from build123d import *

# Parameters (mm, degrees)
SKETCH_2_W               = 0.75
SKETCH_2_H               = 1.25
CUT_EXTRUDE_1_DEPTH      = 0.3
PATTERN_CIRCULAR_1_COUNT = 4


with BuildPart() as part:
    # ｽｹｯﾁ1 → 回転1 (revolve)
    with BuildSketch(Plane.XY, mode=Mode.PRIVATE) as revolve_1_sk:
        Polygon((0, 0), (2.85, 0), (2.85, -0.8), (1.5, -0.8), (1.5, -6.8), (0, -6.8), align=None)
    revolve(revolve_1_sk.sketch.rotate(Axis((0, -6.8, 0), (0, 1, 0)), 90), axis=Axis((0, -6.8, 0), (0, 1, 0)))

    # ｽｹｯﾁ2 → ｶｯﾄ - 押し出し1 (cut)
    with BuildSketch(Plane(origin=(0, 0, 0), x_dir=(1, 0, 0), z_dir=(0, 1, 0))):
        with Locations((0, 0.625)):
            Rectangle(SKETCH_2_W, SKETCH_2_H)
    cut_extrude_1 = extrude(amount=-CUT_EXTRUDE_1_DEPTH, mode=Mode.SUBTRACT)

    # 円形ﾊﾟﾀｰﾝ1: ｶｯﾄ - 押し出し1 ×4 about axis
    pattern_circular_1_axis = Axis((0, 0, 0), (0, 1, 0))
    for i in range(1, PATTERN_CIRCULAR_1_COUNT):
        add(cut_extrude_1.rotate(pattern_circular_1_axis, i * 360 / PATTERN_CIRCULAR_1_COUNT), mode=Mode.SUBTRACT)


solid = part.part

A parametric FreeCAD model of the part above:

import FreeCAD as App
import Part
import Sketcher
from FreeCAD import Vector
Q = App.Units.Quantity


def add_polygon(sketch, points):
    """Adds a closed chain of lines whose ends are joined by coincident constraints."""
    first, n = sketch.GeometryCount, len(points)
    for a, b in zip(points, points[1:] + points[:1]):
        sketch.addGeometry(Part.LineSegment(App.Vector(*a, 0), App.Vector(*b, 0)), False)
    for i in range(n):
        sketch.addConstraint(Sketcher.Constraint("Coincident", first + i, 2, first + (i + 1) % n, 1))

doc = App.newDocument("Part")
body = doc.addObject("PartDesign::Body", "Body")

sketch1 = doc.addObject("Sketcher::SketchObject", "Sketch")
body.addObject(sketch1)
sketch1.AttachmentSupport = (doc.XY_Plane, [""])
sketch1.MapMode = "FlatFace"
add_polygon(sketch1, [(2.9, 0), (0, 0), (0, -6.8), (1.5, -6.8), (1.5, -0.8), (2.9, -0.8)])
sketch1.addConstraint([
    Sketcher.Constraint("Horizontal", 0),
    Sketcher.Constraint("Vertical", 1),
    Sketcher.Constraint("Horizontal", 2),
    Sketcher.Constraint("Vertical", 3),
    Sketcher.Constraint("Horizontal", 4),
    Sketcher.Constraint("Vertical", 5),
    Sketcher.Constraint("Coincident", 0, 2, -1, 1),
    Sketcher.Constraint("DistanceY", 3, 1, 3, 2, Q("6 mm")),
    Sketcher.Constraint("DistanceX", 2, 1, 2, 2, Q("1.5 mm")),
    Sketcher.Constraint("DistanceY", 1, 2, 1, 1, Q("6.8 mm")),
    Sketcher.Constraint("DistanceX", 0, 2, 0, 1, Q("2.85 mm")),
])
revolution = doc.addObject("PartDesign::Revolution", "Revolution")
body.addObject(revolution)
revolution.Profile = sketch1
revolution.ReferenceAxis = (sketch1, ["V_Axis"])
revolution.Angle = 360

sketch2 = doc.addObject("Sketcher::SketchObject", "Sketch001")
body.addObject(sketch2)
sketch2.AttachmentSupport = (doc.XZ_Plane, [""])
sketch2.MapMode = "FlatFace"
add_polygon(sketch2, [(-0.4, -1.2), (-0.4, 0), (0.4, 0), (0.4, -1.2)])
sketch2.addConstraint([
    Sketcher.Constraint("Vertical", 0),
    Sketcher.Constraint("Horizontal", 1),
    Sketcher.Constraint("Vertical", 2),
    Sketcher.Constraint("Horizontal", 3),
    Sketcher.Constraint("Symmetric", 0, 2, 1, 2, -1, 1),
    Sketcher.Constraint("DistanceX", 1, 1, 1, 2, Q("0.75 mm")),
    Sketcher.Constraint("DistanceY", 0, 1, 0, 2, Q("1.25 mm")),
])
pocket1 = doc.addObject("PartDesign::Pocket", "Pocket")
body.addObject(pocket1)
pocket1.Profile = sketch2
pocket1.Length = 0.3
pocket1.Reversed = True
doc.recompute()

polarpattern = doc.addObject("PartDesign::PolarPattern", "PolarPattern")
body.addObject(polarpattern)
polarpattern.Originals = [pocket1]
polarpattern.Axis = (doc.Y_Axis, [""])
polarpattern.Angle = 360
polarpattern.Occurrences = 4
body.Tip = polarpattern

doc.recompute()
